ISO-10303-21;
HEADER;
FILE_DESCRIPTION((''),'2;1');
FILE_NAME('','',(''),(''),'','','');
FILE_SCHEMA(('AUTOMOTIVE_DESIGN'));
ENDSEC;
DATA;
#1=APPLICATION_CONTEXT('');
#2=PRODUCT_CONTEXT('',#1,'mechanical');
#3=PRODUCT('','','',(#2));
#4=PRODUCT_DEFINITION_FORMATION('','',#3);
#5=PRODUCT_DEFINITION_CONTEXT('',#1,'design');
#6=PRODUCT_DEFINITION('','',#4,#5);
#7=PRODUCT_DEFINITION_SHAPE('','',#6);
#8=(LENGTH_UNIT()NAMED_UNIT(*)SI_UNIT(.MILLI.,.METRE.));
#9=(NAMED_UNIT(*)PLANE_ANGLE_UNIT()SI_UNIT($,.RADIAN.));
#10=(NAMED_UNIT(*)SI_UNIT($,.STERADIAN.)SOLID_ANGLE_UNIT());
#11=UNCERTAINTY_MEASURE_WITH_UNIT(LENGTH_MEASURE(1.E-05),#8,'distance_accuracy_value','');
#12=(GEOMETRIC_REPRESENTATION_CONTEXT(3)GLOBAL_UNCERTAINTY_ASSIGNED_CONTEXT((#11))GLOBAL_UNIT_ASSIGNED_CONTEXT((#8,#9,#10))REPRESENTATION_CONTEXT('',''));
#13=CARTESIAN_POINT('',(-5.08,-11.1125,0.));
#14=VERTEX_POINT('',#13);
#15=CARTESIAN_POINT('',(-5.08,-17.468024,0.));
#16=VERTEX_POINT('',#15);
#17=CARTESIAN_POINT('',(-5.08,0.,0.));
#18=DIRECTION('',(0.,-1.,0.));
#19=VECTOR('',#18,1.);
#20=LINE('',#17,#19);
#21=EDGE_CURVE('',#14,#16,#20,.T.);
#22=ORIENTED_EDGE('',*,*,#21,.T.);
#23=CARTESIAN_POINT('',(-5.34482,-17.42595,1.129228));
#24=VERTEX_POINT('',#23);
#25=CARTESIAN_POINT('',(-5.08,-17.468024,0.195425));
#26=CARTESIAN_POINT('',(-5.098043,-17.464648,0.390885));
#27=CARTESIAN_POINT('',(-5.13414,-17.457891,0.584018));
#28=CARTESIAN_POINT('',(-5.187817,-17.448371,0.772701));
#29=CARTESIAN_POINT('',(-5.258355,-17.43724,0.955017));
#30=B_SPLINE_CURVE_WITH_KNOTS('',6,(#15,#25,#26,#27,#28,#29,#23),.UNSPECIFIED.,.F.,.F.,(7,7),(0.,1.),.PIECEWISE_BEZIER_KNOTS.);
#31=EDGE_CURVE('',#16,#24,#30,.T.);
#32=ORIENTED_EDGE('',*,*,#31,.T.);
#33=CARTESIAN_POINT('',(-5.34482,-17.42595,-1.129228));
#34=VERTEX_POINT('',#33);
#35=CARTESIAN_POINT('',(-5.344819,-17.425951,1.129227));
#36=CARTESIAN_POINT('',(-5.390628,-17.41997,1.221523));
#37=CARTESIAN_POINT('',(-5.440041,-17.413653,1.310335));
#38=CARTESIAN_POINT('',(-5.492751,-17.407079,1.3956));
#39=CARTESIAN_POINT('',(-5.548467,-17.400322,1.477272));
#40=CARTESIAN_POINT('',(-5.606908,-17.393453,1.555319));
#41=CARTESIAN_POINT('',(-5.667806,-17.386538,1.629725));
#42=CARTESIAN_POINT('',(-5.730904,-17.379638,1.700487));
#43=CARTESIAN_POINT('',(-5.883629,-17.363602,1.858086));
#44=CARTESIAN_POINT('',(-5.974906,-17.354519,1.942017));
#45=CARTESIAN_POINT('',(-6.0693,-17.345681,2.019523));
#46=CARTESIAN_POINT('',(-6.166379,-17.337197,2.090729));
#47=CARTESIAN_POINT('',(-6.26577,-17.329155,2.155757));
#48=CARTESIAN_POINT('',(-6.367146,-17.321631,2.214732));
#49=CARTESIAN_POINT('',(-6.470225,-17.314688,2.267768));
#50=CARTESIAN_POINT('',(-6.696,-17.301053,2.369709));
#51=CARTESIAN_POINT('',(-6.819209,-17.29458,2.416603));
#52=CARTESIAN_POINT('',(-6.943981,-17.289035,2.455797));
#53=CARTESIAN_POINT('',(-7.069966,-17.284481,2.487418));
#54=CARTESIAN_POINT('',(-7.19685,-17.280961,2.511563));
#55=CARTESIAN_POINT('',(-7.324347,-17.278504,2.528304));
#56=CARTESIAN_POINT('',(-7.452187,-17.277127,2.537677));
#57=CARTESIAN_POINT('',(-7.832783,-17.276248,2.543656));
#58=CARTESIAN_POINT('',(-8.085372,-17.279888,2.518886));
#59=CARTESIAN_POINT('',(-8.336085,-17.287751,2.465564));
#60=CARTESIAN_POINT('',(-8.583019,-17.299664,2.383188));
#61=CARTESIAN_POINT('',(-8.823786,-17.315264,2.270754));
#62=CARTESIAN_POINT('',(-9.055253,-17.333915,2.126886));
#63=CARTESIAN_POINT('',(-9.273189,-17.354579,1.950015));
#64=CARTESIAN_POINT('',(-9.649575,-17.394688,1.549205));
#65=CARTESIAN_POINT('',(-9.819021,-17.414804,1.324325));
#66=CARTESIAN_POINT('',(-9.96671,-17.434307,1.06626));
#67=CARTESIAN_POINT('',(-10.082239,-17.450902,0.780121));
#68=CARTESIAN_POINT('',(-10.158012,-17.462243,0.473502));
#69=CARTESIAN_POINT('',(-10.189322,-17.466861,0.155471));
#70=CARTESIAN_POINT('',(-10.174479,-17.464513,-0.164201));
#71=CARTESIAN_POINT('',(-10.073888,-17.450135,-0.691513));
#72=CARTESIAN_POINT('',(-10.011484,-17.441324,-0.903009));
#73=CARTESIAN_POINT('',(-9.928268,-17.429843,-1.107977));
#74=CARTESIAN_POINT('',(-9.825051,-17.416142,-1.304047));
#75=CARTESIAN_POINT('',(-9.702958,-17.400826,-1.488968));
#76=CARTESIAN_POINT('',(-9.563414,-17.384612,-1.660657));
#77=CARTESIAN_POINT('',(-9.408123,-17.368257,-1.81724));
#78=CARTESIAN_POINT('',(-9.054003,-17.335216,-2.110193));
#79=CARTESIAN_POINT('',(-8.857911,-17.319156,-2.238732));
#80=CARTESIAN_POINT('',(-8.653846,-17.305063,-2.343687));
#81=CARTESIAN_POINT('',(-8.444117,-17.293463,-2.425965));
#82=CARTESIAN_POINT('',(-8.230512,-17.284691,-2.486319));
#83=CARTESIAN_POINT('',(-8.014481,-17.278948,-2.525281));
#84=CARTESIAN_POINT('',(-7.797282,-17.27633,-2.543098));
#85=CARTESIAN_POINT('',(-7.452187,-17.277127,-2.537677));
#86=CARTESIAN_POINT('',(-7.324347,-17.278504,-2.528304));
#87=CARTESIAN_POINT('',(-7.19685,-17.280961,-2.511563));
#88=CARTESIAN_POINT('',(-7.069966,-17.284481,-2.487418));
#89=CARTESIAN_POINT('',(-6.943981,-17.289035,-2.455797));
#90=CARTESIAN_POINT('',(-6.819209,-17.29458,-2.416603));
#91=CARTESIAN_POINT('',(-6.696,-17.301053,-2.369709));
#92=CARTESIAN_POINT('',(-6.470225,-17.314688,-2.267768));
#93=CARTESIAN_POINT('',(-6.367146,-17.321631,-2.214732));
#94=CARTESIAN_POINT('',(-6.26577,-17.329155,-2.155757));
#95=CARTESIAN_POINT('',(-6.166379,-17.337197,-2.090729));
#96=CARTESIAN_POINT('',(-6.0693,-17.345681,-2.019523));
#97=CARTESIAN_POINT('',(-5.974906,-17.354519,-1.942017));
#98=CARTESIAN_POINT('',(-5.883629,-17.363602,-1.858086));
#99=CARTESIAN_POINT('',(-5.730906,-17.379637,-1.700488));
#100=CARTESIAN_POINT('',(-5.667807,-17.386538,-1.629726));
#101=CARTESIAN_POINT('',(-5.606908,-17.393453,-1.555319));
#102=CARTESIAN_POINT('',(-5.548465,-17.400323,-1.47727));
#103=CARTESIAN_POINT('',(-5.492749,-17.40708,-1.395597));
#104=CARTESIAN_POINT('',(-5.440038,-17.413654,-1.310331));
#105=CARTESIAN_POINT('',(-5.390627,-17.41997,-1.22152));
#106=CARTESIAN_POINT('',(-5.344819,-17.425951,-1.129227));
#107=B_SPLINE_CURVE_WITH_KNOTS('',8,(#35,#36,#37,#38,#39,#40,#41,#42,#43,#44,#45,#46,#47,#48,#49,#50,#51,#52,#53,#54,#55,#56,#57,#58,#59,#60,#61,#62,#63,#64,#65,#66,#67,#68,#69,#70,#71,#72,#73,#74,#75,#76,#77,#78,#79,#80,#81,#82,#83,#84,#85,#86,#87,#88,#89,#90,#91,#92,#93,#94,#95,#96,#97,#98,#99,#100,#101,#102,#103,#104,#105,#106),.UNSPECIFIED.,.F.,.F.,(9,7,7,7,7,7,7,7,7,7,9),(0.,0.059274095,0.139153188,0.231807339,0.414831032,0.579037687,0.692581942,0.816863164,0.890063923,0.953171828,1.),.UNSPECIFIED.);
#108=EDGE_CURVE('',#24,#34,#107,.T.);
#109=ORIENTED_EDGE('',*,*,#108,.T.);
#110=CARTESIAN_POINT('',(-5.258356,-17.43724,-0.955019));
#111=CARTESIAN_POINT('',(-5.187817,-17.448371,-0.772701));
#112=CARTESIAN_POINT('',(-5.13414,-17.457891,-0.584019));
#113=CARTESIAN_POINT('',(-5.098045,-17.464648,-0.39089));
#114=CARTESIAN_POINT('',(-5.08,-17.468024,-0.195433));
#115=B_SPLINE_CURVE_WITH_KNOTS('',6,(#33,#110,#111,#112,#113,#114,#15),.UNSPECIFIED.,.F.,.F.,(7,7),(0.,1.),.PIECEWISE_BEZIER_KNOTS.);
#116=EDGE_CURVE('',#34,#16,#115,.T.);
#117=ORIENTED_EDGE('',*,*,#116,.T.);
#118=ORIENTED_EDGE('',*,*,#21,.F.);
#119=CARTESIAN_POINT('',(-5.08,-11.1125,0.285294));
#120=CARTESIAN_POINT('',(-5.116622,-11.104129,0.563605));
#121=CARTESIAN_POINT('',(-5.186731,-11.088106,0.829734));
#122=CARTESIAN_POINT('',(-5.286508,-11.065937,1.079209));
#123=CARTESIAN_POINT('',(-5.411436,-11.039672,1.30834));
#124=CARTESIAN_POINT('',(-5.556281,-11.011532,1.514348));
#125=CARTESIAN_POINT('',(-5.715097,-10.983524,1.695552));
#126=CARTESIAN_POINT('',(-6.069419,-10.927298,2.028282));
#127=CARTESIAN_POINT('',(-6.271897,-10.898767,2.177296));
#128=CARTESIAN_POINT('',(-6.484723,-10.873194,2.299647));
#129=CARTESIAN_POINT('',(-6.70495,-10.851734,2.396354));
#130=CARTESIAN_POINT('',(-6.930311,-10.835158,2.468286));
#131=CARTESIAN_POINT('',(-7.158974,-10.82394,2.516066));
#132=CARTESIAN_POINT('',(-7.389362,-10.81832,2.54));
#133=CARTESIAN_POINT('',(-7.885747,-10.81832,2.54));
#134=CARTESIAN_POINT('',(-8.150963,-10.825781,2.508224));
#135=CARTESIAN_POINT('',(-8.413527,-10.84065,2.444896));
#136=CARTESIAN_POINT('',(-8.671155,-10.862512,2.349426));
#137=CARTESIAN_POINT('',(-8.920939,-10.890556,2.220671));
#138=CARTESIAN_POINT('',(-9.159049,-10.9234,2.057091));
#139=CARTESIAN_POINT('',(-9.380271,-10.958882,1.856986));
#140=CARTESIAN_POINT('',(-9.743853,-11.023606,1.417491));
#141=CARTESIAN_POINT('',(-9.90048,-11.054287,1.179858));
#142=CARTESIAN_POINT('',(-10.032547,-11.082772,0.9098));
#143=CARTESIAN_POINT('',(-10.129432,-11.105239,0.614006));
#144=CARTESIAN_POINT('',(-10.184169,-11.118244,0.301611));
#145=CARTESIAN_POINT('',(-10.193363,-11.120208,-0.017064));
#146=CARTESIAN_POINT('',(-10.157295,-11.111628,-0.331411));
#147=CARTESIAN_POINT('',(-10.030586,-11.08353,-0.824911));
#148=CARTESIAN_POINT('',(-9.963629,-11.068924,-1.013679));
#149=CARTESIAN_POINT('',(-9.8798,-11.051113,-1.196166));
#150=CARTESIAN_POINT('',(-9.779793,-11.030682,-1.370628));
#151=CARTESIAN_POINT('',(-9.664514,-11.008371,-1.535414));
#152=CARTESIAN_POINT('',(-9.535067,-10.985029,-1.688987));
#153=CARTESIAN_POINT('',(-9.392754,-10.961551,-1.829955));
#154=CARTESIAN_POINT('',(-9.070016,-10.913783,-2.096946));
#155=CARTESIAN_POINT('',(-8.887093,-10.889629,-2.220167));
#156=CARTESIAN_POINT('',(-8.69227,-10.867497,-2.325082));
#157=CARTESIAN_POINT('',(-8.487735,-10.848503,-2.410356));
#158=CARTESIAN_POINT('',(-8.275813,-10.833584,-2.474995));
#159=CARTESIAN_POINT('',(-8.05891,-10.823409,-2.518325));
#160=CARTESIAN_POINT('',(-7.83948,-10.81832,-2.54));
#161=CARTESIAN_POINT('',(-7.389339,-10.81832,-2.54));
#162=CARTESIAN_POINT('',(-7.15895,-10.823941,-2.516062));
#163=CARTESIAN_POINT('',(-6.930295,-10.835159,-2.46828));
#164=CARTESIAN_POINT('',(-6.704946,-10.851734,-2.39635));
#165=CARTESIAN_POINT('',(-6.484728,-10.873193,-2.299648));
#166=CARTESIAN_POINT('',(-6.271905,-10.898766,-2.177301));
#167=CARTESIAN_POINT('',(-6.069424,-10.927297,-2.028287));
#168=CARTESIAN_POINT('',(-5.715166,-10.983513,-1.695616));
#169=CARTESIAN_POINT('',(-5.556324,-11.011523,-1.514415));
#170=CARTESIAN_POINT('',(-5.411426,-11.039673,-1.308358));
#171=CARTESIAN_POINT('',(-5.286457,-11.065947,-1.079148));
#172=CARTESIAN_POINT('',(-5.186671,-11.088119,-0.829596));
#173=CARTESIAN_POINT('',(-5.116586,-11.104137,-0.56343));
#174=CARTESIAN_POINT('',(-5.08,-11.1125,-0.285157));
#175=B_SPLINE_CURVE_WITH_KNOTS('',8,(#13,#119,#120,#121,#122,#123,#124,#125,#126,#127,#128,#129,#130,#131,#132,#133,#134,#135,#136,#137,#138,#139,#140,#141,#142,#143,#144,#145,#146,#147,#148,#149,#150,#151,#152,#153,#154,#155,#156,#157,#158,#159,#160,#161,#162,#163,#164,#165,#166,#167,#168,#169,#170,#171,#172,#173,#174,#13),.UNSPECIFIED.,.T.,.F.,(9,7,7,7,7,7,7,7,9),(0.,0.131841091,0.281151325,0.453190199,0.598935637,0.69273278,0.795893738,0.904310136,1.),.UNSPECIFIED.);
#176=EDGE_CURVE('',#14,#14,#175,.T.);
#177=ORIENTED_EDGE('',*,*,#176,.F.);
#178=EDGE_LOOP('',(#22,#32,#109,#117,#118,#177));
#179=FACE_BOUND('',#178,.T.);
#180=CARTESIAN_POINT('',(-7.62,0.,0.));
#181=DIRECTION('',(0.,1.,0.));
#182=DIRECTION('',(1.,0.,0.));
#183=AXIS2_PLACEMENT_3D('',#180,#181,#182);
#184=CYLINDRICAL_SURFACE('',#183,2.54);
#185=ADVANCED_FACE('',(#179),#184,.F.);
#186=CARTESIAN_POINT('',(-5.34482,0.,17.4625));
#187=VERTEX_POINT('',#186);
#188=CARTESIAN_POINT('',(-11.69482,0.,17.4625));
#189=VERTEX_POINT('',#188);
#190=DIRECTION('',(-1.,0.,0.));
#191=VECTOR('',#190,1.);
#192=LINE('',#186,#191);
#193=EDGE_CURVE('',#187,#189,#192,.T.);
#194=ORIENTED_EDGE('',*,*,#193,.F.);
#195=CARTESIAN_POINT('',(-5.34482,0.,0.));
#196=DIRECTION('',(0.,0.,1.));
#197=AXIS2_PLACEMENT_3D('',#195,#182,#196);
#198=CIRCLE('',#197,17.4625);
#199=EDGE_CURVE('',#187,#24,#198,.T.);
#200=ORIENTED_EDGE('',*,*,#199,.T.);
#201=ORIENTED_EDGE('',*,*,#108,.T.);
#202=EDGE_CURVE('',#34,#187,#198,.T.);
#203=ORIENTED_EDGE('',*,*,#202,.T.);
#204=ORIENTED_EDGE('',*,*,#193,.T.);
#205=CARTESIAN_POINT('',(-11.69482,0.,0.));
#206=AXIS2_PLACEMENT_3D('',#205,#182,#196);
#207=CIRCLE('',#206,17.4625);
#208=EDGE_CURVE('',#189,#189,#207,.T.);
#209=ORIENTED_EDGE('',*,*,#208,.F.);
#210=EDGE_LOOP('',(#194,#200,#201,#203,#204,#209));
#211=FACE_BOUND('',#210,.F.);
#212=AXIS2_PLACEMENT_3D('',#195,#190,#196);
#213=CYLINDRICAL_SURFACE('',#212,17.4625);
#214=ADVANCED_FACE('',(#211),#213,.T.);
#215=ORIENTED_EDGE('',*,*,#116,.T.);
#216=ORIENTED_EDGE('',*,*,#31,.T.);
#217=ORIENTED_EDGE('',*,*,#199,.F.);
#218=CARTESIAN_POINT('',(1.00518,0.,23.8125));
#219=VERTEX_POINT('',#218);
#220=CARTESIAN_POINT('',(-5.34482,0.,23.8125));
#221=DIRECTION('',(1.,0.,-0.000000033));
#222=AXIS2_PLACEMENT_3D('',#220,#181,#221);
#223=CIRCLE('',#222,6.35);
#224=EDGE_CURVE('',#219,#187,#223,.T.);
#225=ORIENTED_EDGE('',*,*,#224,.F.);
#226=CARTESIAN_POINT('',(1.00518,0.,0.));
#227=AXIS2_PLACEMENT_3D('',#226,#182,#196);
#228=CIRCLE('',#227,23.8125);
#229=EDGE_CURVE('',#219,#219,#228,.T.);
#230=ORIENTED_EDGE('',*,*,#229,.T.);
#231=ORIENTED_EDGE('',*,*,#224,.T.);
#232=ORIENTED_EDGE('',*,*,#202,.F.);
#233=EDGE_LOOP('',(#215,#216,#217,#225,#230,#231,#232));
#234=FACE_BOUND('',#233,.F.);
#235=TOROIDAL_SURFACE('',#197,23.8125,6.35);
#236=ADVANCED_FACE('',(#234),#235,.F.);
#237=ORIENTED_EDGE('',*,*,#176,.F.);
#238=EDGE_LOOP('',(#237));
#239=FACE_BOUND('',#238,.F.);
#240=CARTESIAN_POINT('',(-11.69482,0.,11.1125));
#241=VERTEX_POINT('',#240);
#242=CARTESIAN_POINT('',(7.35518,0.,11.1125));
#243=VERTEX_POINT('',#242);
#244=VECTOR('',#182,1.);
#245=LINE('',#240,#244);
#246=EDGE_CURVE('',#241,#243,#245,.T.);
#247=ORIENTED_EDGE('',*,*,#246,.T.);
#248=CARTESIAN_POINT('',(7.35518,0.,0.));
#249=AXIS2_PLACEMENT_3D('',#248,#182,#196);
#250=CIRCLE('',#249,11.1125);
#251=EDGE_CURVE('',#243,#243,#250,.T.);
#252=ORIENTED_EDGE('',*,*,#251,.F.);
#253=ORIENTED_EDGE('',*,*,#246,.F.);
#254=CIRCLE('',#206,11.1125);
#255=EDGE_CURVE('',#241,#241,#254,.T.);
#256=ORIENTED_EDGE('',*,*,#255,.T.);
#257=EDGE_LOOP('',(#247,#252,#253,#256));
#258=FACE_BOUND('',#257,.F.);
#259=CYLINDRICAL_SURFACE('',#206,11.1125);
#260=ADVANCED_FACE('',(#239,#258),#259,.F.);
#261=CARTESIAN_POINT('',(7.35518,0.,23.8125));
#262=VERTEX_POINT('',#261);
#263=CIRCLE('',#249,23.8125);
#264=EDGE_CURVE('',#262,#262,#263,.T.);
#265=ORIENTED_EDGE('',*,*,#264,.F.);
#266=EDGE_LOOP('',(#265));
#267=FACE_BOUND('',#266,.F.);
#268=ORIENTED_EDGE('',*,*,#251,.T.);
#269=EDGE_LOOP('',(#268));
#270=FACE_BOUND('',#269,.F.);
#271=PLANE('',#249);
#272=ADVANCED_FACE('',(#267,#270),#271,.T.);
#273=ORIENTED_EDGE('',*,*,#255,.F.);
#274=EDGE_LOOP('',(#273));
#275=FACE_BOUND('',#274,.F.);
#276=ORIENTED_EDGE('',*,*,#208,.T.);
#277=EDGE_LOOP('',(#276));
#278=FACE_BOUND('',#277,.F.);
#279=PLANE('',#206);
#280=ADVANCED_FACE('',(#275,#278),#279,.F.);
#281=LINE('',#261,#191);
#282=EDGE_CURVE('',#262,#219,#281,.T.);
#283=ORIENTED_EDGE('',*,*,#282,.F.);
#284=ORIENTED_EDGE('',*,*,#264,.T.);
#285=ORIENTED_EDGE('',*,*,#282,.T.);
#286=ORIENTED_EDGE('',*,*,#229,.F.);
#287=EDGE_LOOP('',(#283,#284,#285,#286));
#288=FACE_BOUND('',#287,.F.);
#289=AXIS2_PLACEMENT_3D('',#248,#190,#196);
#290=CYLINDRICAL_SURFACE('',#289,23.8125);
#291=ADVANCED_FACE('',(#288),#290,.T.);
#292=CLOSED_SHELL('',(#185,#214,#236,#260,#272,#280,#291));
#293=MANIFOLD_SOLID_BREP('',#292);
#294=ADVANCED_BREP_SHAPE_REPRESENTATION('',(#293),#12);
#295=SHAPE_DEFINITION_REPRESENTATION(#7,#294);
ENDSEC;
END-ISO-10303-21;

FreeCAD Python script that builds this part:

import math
import FreeCAD as App
import Part
import Sketcher
from FreeCAD import Vector
Q = App.Units.Quantity

doc = App.newDocument("Part")
body = doc.addObject("PartDesign::Body", "Body")

# Sketch on XZ plane
sketch1 = body.newObject("Sketcher::SketchObject", "Sketch")
sketch1.AttachmentSupport = (doc.getObject("XZ_Plane"), [""])
sketch1.MapMode = "FlatFace"
sketch1.addGeometry(Part.LineSegment(Vector(-12, 17, 0), Vector(-12, 11, 0)), False)
sketch1.addGeometry(Part.LineSegment(Vector(-12, 11, 0), Vector(7, 11, 0)), False)
sketch1.addGeometry(Part.LineSegment(Vector(7, 11, 0), Vector(7, 24, 0)), False)
sketch1.addGeometry(Part.LineSegment(Vector(7, 24, 0), Vector(1, 24, 0)), False)
sketch1.addGeometry(Part.ArcOfCircle(Part.Circle(Vector(-5, 24, 0), Vector(0, 0, 1), 6), math.radians(-90), math.radians(0)), False)
sketch1.addGeometry(Part.LineSegment(Vector(-5, 17, 0), Vector(-12, 17, 0)), False)
sketch1.addConstraint(Sketcher.Constraint("Coincident", 0, 2, 1, 1))
sketch1.addConstraint(Sketcher.Constraint("Coincident", 1, 2, 2, 1))
sketch1.addConstraint(Sketcher.Constraint("Coincident", 2, 2, 3, 1))
sketch1.addConstraint(Sketcher.Constraint("Coincident", 3, 2, 4, 2))
sketch1.addConstraint(Sketcher.Constraint("Tangent", 4, 1, 5, 1))
sketch1.addConstraint(Sketcher.Constraint("Coincident", 5, 2, 0, 1))
sketch1.addConstraint(Sketcher.Constraint("Vertical", 0))
sketch1.addConstraint(Sketcher.Constraint("Horizontal", 1))
sketch1.addConstraint(Sketcher.Constraint("Vertical", 2))
sketch1.addConstraint(Sketcher.Constraint("Horizontal", 3))
sketch1.addConstraint(Sketcher.Constraint("Horizontal", 5))
sketch1.addConstraint(Sketcher.Constraint("Horizontal", 4, 3, 2, 2))
sketch1.addConstraint(Sketcher.Constraint("Equal", 3, 5))
sketch1.addConstraint(Sketcher.Constraint("Equal", 5, 0))
sketch1.addConstraint(Sketcher.Constraint("Radius", 4, Q("0.25 in")))
sketch1.addConstraint(Sketcher.Constraint("DistanceY", 2, 1, 2, 2, Q("0.5 in")))
sketch1.addConstraint(Sketcher.Constraint("DistanceY", -1, 1, 4, 3, Q("0.9375 in")))
sketch1.addConstraint(Sketcher.Constraint("DistanceX", 4, 3, -1, 1, Q("5.34482 mm")))
revolution = body.newObject("PartDesign::Revolution", "Revolution")
revolution.Profile = sketch1
revolution.ReferenceAxis = (sketch1, ["H_Axis"])
revolution.Angle = 360

# Sketch on XZ plane
sketch2 = body.newObject("Sketcher::SketchObject", "Sketch001")
sketch2.AttachmentSupport = (doc.getObject("XZ_Plane"), [""])
sketch2.MapMode = "FlatFace"
sketch2.addGeometry(Part.Circle(Vector(-7.6, 0, 0), Vector(0, 0, 1), 2.5), False)
sketch2.addConstraint(Sketcher.Constraint("PointOnObject", 0, 3, -1))
sketch2.addConstraint(Sketcher.Constraint("Diameter", 0, Q("0.2 in")))
sketch2.addConstraint(Sketcher.Constraint("DistanceX", 0, 3, -1, 1, Q("0.3 in")))
pocket1 = body.newObject("PartDesign::Pocket", "Pocket")
pocket1.Profile = sketch2
pocket1.Length = Q("1 in")
pocket1.Reversed = True

doc.recompute()
